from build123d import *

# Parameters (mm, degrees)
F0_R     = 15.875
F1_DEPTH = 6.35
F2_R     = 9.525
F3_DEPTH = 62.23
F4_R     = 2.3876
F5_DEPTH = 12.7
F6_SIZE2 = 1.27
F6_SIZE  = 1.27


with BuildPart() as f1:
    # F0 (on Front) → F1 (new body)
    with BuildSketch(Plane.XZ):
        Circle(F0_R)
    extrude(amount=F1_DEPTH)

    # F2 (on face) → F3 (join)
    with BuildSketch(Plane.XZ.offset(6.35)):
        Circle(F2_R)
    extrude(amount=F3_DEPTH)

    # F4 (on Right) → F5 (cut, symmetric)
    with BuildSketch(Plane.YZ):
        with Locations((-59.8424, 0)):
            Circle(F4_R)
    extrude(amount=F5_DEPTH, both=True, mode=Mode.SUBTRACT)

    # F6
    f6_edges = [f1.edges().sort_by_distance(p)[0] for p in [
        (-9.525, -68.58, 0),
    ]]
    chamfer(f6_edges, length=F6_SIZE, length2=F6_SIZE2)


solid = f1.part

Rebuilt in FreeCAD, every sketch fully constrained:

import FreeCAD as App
import Part
import Sketcher

V = App.Vector
Q = App.Units.Quantity


def edges_at(feature, points):
    """Names of the edges that pass closest to the given points."""
    edges = feature.Shape.Edges
    near = lambda p: min(range(len(edges)), key=lambda i: edges[i].distToShape(Part.Vertex(*p))[0])
    return sorted({f"Edge{near(p) + 1}" for p in points})

doc = App.newDocument("Part")
body = doc.addObject("PartDesign::Body", "Body")

sketch1 = body.newObject("Sketcher::SketchObject", "Sketch")
sketch1.AttachmentSupport = (doc.getObject("XZ_Plane"), [""])
sketch1.MapMode = "FlatFace"
sketch1.addGeometry(Part.Circle(V(0, 0, 0), V(0, 0, 1), 15.875), False)
sketch1.addConstraint([
    Sketcher.Constraint("Coincident", 0, 3, -1, 1),
    Sketcher.Constraint("Diameter", 0, Q("1.25 in")),
])
pad1 = body.newObject("PartDesign::Pad", "Pad")
pad1.Profile = sketch1
pad1.Length = Q("0.25 in")

sketch2 = body.newObject("Sketcher::SketchObject", "Sketch001")
sketch2.AttachmentSupport = (doc.getObject("XZ_Plane"), [""])
sketch2.MapMode = "FlatFace"
sketch2.AttachmentOffset = App.Placement(V(0, 0, 0.25 * 25.4), App.Rotation())
sketch2.addGeometry(Part.Circle(V(0, 0, 0), V(0, 0, 1), 9.525), False)
sketch2.addConstraint([
    Sketcher.Constraint("Coincident", 0, 3, -1, 1),
    Sketcher.Constraint("Diameter", 0, Q("0.75 in")),
])
pad2 = body.newObject("PartDesign::Pad", "Pad001")
pad2.Profile = sketch2
pad2.Length = Q("2.45 in")

sketch3 = body.newObject("Sketcher::SketchObject", "Sketch002")
sketch3.AttachmentSupport = (doc.getObject("YZ_Plane"), [""])
sketch3.MapMode = "FlatFace"
sketch3.addGeometry(Part.Circle(V(-59.8424, 0, 0), V(0, 0, 1), 2.3876), False)
sketch3.addConstraint([
    Sketcher.Constraint("PointOnObject", 0, 3, -1),
    Sketcher.Constraint("Diameter", 0, Q("0.188 in")),
    Sketcher.Constraint("DistanceX", 0, 3, -1, 1, Q("2.356 in")),
])
pocket1 = body.newObject("PartDesign::Pocket", "Pocket")
pocket1.Profile = sketch3
pocket1.Length = Q("1 in")
pocket1.Midplane = True
doc.recompute()

chamfer = body.newObject("PartDesign::Chamfer", "Chamfer")
chamfer.Base = (pocket1, edges_at(pocket1, [(-9.525, -68.58, 0)]))
chamfer.ChamferType = "Two distances"
chamfer.Size = Q("0.05 in")
chamfer.Size2 = Q("0.05 in")

doc.recompute()
